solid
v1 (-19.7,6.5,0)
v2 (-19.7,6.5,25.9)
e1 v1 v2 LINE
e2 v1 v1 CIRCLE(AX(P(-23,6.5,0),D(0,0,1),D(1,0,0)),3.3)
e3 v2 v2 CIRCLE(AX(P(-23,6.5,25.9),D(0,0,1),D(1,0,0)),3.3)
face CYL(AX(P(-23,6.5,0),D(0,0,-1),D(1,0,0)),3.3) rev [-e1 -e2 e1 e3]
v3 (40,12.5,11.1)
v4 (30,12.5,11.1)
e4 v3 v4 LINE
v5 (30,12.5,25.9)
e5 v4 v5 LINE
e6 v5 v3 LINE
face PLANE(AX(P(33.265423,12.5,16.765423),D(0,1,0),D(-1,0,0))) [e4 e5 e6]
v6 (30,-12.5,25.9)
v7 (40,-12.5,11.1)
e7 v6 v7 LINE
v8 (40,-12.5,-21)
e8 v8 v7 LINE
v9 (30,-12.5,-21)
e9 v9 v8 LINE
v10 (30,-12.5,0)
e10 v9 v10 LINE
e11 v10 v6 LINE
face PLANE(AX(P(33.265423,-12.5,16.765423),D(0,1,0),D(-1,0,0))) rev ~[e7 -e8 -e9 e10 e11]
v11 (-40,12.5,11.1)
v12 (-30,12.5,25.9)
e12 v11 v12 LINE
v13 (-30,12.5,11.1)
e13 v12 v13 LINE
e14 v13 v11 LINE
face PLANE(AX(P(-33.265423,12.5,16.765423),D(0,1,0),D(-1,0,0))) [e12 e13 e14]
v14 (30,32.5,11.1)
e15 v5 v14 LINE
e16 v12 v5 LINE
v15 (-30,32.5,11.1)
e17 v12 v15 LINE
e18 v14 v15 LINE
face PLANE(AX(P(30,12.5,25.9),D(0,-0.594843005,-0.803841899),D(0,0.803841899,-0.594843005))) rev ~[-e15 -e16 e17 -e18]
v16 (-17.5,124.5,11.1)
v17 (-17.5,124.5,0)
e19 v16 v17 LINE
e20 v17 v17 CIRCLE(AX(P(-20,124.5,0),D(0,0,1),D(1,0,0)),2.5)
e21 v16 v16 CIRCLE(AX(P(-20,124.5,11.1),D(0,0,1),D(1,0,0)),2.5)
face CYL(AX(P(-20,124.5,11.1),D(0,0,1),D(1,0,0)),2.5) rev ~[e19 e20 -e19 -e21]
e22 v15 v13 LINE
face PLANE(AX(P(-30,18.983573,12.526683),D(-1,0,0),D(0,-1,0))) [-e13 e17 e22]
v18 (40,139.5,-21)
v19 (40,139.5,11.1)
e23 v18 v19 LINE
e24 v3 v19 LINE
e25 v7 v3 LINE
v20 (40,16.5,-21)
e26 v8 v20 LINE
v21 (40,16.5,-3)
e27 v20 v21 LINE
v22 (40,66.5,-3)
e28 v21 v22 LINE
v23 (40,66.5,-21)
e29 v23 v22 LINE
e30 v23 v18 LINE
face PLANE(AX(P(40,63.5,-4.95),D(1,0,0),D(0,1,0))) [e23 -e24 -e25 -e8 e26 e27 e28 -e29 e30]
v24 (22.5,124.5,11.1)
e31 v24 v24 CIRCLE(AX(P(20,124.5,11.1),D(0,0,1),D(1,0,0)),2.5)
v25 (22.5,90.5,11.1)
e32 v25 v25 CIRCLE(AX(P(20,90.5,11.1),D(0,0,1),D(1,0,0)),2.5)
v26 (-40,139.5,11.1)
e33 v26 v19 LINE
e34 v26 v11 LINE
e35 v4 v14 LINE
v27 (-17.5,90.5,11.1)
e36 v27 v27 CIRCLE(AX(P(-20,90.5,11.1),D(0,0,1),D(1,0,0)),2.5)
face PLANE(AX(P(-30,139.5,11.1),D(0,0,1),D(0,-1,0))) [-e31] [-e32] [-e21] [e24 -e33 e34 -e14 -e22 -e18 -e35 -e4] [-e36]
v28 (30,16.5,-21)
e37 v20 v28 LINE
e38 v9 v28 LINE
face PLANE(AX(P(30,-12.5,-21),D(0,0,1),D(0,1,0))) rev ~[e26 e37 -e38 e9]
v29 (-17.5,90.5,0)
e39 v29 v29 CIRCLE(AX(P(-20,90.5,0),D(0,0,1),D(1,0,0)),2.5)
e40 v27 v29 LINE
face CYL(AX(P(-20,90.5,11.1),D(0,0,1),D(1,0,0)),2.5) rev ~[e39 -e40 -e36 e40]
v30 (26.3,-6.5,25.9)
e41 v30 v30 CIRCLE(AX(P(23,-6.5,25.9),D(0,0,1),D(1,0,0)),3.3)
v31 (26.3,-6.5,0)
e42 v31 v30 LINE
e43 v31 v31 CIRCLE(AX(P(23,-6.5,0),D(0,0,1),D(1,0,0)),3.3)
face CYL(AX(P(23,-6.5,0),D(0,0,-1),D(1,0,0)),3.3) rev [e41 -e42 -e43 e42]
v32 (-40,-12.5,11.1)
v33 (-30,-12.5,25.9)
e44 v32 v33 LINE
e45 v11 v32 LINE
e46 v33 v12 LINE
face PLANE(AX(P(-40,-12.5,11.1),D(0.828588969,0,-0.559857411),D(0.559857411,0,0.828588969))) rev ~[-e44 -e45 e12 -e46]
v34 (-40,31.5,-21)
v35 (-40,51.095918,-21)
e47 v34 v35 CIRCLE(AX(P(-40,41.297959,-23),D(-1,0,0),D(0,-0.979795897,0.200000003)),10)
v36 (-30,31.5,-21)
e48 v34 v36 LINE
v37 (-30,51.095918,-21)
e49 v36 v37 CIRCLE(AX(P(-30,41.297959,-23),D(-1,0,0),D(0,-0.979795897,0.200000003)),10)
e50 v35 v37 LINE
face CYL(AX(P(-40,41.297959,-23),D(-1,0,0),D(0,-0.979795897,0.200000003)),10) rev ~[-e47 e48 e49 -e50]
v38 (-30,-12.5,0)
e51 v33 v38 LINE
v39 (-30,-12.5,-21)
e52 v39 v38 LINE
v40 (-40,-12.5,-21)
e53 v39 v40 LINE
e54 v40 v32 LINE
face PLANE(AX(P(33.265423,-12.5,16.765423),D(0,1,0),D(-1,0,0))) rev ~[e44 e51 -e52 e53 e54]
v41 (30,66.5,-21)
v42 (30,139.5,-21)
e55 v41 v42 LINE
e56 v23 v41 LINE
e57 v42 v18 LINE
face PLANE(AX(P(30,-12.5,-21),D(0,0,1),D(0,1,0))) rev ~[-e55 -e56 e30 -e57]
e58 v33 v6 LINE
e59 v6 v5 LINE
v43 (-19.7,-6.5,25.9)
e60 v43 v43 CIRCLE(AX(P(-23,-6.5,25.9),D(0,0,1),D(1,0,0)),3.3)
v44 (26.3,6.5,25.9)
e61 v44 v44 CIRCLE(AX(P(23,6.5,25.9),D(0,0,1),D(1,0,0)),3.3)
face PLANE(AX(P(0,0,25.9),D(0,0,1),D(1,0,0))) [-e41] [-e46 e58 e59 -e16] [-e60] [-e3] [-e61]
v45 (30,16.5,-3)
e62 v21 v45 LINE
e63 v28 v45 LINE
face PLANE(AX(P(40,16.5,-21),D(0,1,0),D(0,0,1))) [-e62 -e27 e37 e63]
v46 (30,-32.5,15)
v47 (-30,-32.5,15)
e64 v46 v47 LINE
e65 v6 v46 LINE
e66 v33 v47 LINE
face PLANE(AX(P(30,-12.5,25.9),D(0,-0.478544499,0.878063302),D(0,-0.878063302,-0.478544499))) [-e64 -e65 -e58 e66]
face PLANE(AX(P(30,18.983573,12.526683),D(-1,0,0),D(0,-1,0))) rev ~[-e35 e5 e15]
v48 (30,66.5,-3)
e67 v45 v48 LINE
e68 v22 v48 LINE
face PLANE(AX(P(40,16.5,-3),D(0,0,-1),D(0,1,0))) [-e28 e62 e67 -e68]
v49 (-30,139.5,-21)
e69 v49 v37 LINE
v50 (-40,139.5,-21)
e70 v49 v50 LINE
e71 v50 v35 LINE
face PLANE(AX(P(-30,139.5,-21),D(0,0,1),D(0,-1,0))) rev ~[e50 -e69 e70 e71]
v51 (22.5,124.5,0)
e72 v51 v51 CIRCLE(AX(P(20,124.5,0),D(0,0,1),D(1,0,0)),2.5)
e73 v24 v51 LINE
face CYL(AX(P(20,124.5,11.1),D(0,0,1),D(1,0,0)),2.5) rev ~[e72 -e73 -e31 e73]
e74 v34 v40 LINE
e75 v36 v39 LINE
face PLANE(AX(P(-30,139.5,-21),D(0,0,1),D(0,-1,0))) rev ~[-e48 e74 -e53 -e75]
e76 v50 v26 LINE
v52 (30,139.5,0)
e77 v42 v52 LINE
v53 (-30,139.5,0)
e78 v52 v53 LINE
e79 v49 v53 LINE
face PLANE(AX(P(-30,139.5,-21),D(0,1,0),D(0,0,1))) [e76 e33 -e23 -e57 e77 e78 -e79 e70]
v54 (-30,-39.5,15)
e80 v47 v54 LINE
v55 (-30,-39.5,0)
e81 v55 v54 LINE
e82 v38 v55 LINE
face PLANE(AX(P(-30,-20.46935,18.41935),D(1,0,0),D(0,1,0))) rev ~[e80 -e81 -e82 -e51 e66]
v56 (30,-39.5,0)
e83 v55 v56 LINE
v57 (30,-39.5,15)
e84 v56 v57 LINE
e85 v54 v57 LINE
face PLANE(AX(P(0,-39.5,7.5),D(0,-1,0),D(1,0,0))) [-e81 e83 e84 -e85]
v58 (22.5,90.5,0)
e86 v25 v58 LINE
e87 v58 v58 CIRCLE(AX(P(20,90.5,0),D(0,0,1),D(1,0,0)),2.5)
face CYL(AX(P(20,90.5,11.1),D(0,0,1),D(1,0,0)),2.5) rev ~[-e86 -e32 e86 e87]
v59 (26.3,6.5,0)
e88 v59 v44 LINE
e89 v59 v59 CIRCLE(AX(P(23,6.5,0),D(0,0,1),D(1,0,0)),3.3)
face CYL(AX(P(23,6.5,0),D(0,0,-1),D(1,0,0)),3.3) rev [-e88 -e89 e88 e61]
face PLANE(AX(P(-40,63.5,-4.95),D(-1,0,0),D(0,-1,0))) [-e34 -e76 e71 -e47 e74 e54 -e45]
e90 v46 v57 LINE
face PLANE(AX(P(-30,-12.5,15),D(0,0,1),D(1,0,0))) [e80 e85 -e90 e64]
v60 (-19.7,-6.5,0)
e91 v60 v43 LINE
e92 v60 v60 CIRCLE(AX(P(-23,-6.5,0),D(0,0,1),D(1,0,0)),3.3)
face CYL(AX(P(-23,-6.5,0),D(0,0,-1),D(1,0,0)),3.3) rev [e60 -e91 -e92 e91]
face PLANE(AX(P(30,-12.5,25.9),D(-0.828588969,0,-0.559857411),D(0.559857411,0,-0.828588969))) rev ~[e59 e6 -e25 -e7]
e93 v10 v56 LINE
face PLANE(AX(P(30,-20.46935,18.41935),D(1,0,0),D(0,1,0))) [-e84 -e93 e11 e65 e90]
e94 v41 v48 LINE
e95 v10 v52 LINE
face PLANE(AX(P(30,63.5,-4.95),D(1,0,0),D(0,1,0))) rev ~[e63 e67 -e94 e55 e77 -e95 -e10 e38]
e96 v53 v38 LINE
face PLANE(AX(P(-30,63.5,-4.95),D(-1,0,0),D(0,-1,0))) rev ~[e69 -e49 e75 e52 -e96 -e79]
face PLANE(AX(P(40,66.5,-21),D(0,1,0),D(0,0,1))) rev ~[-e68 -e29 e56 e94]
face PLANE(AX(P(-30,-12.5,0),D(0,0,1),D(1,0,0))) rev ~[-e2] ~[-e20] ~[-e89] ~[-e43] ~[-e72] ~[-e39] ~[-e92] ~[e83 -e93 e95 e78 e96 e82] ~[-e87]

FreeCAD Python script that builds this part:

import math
import FreeCAD as App
import Part
import Sketcher
from FreeCAD import Vector
Q = App.Units.Quantity

doc = App.newDocument("Part")
body = doc.addObject("PartDesign::Body", "Body")

# Sketch on XY plane
sketch1 = body.newObject("Sketcher::SketchObject", "Sketch")
sketch1.AttachmentSupport = (doc.getObject("XY_Plane"), [""])
sketch1.MapMode = "FlatFace"
sketch1.addGeometry([
    Part.LineSegment(Vector(-30, 12.5, 0), Vector(-30, -12.5, 0)),  # 0
    Part.LineSegment(Vector(-30, -12.5, 0), Vector(30, -12.5, 0)),  # 1
    Part.LineSegment(Vector(30, -12.5, 0), Vector(30, 12.5, 0)),  # 2
    Part.LineSegment(Vector(30, 12.5, 0), Vector(-30, 12.5, 0)),  # 3
    Part.Circle(Vector(-23, -6.5, 0), Vector(0, 0, 1), 3.3),  # 4
    Part.Circle(Vector(23, -6.5, 0), Vector(0, 0, 1), 3.3),  # 5
    Part.Circle(Vector(-23, 6.5, 0), Vector(0, 0, 1), 3.3),  # 6
    Part.Circle(Vector(23, 6.5, 0), Vector(0, 0, 1), 3.3),  # 7
], False)
sketch1.addConstraint([
    Sketcher.Constraint("Coincident", 0, 2, 1, 1),
    Sketcher.Constraint("Coincident", 1, 2, 2, 1),
    Sketcher.Constraint("Coincident", 2, 2, 3, 1),
    Sketcher.Constraint("Coincident", 3, 2, 0, 1),
    Sketcher.Constraint("Vertical", 0),
    Sketcher.Constraint("Horizontal", 1),
    Sketcher.Constraint("Vertical", 2),
    Sketcher.Constraint("Horizontal", 3),
    Sketcher.Constraint("Equal", 4, 5),
    Sketcher.Constraint("Equal", 5, 6),
    Sketcher.Constraint("Equal", 6, 7),
    Sketcher.Constraint("Symmetric", 5, 3, 6, 3, -1, 1),
    Sketcher.Constraint("Symmetric", 4, 3, 7, 3, -1, 1),
    Sketcher.Constraint("Symmetric", 0, 2, 2, 2, -1, 1),
    Sketcher.Constraint("Symmetric", 4, 3, 5, 3, -2),
    Sketcher.Constraint("Diameter", 4, Q("6.6 mm")),
    Sketcher.Constraint("DistanceX", 1, 1, 1, 2, Q("60 mm")),
    Sketcher.Constraint("DistanceY", 0, 2, 0, 1, Q("25 mm")),
    Sketcher.Constraint("DistanceX", 4, 3, -1, 1, Q("23 mm")),
    Sketcher.Constraint("DistanceY", 4, 3, 6, 3, Q("13 mm")),
])
pad1 = body.newObject("PartDesign::Pad", "Pad")
pad1.Profile = sketch1
pad1.Length = 25.9

# Sketch on XZ plane
sketch2 = body.newObject("Sketcher::SketchObject", "Sketch001")
sketch2.AttachmentSupport = (doc.getObject("XZ_Plane"), [""])
sketch2.MapMode = "FlatFace"
sketch2.AttachmentOffset = App.Placement(Vector(0, 0, -12.5), App.Rotation())
sketch2.addGeometry([
    Part.LineSegment(Vector(30, 11, 0), Vector(30, 0, 0)),
    Part.LineSegment(Vector(30, 0, 0), Vector(-30, 0, 0)),
    Part.LineSegment(Vector(-30, 0, 0), Vector(-30, 11, 0)),
    Part.LineSegment(Vector(-30, 11, 0), Vector(30, 11, 0)),
], False)
sketch2.addConstraint([
    Sketcher.Constraint("Coincident", 0, 2, 1, 1),
    Sketcher.Constraint("Coincident", 1, 2, 2, 1),
    Sketcher.Constraint("Coincident", 2, 2, 3, 1),
    Sketcher.Constraint("Coincident", 3, 2, 0, 1),
    Sketcher.Constraint("Vertical", 0),
    Sketcher.Constraint("Horizontal", 1),
    Sketcher.Constraint("Vertical", 2),
    Sketcher.Constraint("Horizontal", 3),
    Sketcher.Constraint("Symmetric", 0, 2, 1, 2, -1, 1),
    Sketcher.Constraint("DistanceX", 1, 2, 1, 1, Q("60 mm")),
    Sketcher.Constraint("DistanceY", 0, 2, 0, 1, Q("11.1 mm")),
])
pad2 = body.newObject("PartDesign::Pad", "Pad001")
pad2.Profile = sketch2
pad2.Length = 127
pad2.Reversed = True

# Sketch on XY plane
sketch3 = body.newObject("Sketcher::SketchObject", "Sketch002")
sketch3.AttachmentSupport = (doc.getObject("XY_Plane"), [""])
sketch3.MapMode = "FlatFace"
sketch3.AttachmentOffset = App.Placement(Vector(0, 0, 11.1), App.Rotation())
sketch3.addGeometry([
    Part.Circle(Vector(-20, 124.5, 0), Vector(0, 0, 1), 2.5),
    Part.Circle(Vector(20, 124.5, 0), Vector(0, 0, 1), 2.5),
    Part.Circle(Vector(-20, 90.5, 0), Vector(0, 0, 1), 2.5),
    Part.Circle(Vector(20, 90.5, 0), Vector(0, 0, 1), 2.5),
], False)
sketch3.addConstraint([
    Sketcher.Constraint("Equal", 0, 1),
    Sketcher.Constraint("Equal", 1, 2),
    Sketcher.Constraint("Equal", 2, 3),
    Sketcher.Constraint("Symmetric", 0, 3, 1, 3, -2),
    Sketcher.Constraint("Symmetric", 2, 3, 3, 3, -2),
    Sketcher.Constraint("Vertical", 0, 3, 2, 3),
    Sketcher.Constraint("Diameter", 0, Q("5 mm")),
    Sketcher.Constraint("DistanceX", 0, 3, -1, 1, Q("20 mm")),
    Sketcher.Constraint("DistanceY", 2, 3, 0, 3, Q("34 mm")),
    Sketcher.Constraint("DistanceY", -1, 1, 0, 3, Q("124.5 mm")),
])
pocket1 = body.newObject("PartDesign::Pocket", "Pocket")
pocket1.Profile = sketch3
pocket1.Type = "ThroughAll"

# Sketch on YZ plane
sketch4 = body.newObject("Sketcher::SketchObject", "Sketch003")
sketch4.AttachmentSupport = (doc.getObject("YZ_Plane"), [""])
sketch4.MapMode = "FlatFace"
sketch4.AttachmentOffset = App.Placement(Vector(0, 0, 30), App.Rotation())
sketch4.addGeometry([
    Part.LineSegment(Vector(32, 11, 0), Vector(12, 26, 0)),
    Part.LineSegment(Vector(12, 26, 0), Vector(12, 0, 0)),
    Part.LineSegment(Vector(12, 0, 0), Vector(32, 11, 0)),
], False)
sketch4.addConstraint([
    Sketcher.Constraint("Coincident", 0, 2, 1, 1),
    Sketcher.Constraint("Coincident", 1, 2, 2, 1),
    Sketcher.Constraint("Coincident", 2, 2, 0, 1),
    Sketcher.Constraint("Vertical", 1),
    Sketcher.Constraint("PointOnObject", 1, 2, -1),
    Sketcher.Constraint("DistanceY", 1, 2, 1, 1, Q("25.9 mm")),
    Sketcher.Constraint("DistanceX", 1, 2, 2, 2, Q("20 mm")),
    Sketcher.Constraint("DistanceX", -1, 1, 0, 2, Q("12.5 mm")),
    Sketcher.Constraint("DistanceY", -1, 1, 2, 2, Q("11.1 mm")),
])
pad3 = body.newObject("PartDesign::Pad", "Pad002")
pad3.Profile = sketch4
pad3.Length = 60
pad3.Reversed = True

# Sketch on YZ plane
sketch5 = body.newObject("Sketcher::SketchObject", "Sketch004")
sketch5.AttachmentSupport = (doc.getObject("YZ_Plane"), [""])
sketch5.MapMode = "FlatFace"
sketch5.AttachmentOffset = App.Placement(Vector(0, 0, 30), App.Rotation())
sketch5.addGeometry([
    Part.LineSegment(Vector(-12, 11, 0), Vector(-12, -21, 0)),
    Part.LineSegment(Vector(-12, -21, 0), Vector(140, -21, 0)),
    Part.LineSegment(Vector(140, -21, 0), Vector(140, 11, 0)),
    Part.LineSegment(Vector(140, 11, 0), Vector(-12, 11, 0)),
], False)
sketch5.addConstraint([
    Sketcher.Constraint("Coincident", 0, 2, 1, 1),
    Sketcher.Constraint("Coincident", 1, 2, 2, 1),
    Sketcher.Constraint("Coincident", 2, 2, 3, 1),
    Sketcher.Constraint("Coincident", 3, 2, 0, 1),
    Sketcher.Constraint("Vertical", 0),
    Sketcher.Constraint("Horizontal", 1),
    Sketcher.Constraint("Vertical", 2),
    Sketcher.Constraint("Horizontal", 3),
    Sketcher.Constraint("DistanceX", 1, 1, 1, 2, Q("152 mm")),
    Sketcher.Constraint("DistanceY", 0, 2, 0, 1, Q("32.1 mm")),
    Sketcher.Constraint("DistanceY", 0, 2, -1, 1, Q("21 mm")),
    Sketcher.Constraint("DistanceX", 0, 2, -1, 1, Q("12.5 mm")),
])
pad4 = body.newObject("PartDesign::Pad", "Pad003")
pad4.Profile = sketch5
pad4.Length = 10

# Sketch on YZ plane
sketch6 = body.newObject("Sketcher::SketchObject", "Sketch005")
sketch6.AttachmentSupport = (doc.getObject("YZ_Plane"), [""])
sketch6.MapMode = "FlatFace"
sketch6.AttachmentOffset = App.Placement(Vector(0, 0, -30), App.Rotation())
sketch6.addGeometry([
    Part.LineSegment(Vector(140, 11, 0), Vector(140, -21, 0)),
    Part.LineSegment(Vector(140, -21, 0), Vector(-12, -21, 0)),
    Part.LineSegment(Vector(-12, -21, 0), Vector(-12, 11, 0)),
    Part.LineSegment(Vector(-12, 11, 0), Vector(140, 11, 0)),
], False)
sketch6.addConstraint([
    Sketcher.Constraint("Coincident", 0, 2, 1, 1),
    Sketcher.Constraint("Coincident", 1, 2, 2, 1),
    Sketcher.Constraint("Coincident", 2, 2, 3, 1),
    Sketcher.Constraint("Coincident", 3, 2, 0, 1),
    Sketcher.Constraint("Vertical", 0),
    Sketcher.Constraint("Horizontal", 1),
    Sketcher.Constraint("Vertical", 2),
    Sketcher.Constraint("Horizontal", 3),
    Sketcher.Constraint("DistanceX", 1, 2, 1, 1, Q("152 mm")),
    Sketcher.Constraint("DistanceY", 0, 2, 0, 1, Q("32.1 mm")),
    Sketcher.Constraint("DistanceY", 0, 2, -1, 1, Q("21 mm")),
    Sketcher.Constraint("DistanceX", -1, 1, 0, 2, Q("139.5 mm")),
])
pad5 = body.newObject("PartDesign::Pad", "Pad004")
pad5.Profile = sketch6
pad5.Length = 10
pad5.Reversed = True

# Sketch on XZ plane
sketch7 = body.newObject("Sketcher::SketchObject", "Sketch006")
sketch7.AttachmentSupport = (doc.getObject("XZ_Plane"), [""])
sketch7.MapMode = "FlatFace"
sketch7.AttachmentOffset = App.Placement(Vector(0, 0, 12.5), App.Rotation())
sketch7.addGeometry([
    Part.LineSegment(Vector(30, 11, 0), Vector(40, 11, 0)),  # 0
    Part.LineSegment(Vector(40, 11, 0), Vector(30, 26, 0)),  # 1
    Part.LineSegment(Vector(30, 26, 0), Vector(30, 11, 0)),  # 2
    Part.LineSegment(Vector(-30, 11, 0), Vector(-30, 26, 0)),  # 3
    Part.LineSegment(Vector(-30, 26, 0), Vector(-40, 11, 0)),  # 4
    Part.LineSegment(Vector(-40, 11, 0), Vector(-30, 11, 0)),  # 5
], False)
sketch7.addConstraint([
    Sketcher.Constraint("Coincident", 0, 2, 1, 1),
    Sketcher.Constraint("Coincident", 1, 2, 2, 1),
    Sketcher.Constraint("Coincident", 2, 2, 0, 1),
    Sketcher.Constraint("Coincident", 3, 2, 4, 1),
    Sketcher.Constraint("Coincident", 4, 2, 5, 1),
    Sketcher.Constraint("Coincident", 5, 2, 3, 1),
    Sketcher.Constraint("Horizontal", 0),
    Sketcher.Constraint("Vertical", 2),
    Sketcher.Constraint("Vertical", 3),
    Sketcher.Constraint("Horizontal", 5),
    Sketcher.Constraint("Symmetric", 1, 2, 3, 2, -2),
    Sketcher.Constraint("Symmetric", 0, 2, 4, 2, -2),
    Sketcher.Constraint("DistanceX", 0, 1, 0, 2, Q("10 mm")),
    Sketcher.Constraint("DistanceY", 2, 2, 2, 1, Q("14.8 mm")),
    Sketcher.Constraint("DistanceX", -1, 1, 0, 2, Q("40 mm")),
    Sketcher.Constraint("DistanceY", -1, 1, 0, 2, Q("11.1 mm")),
])
pad6 = body.newObject("PartDesign::Pad", "Pad005")
pad6.Profile = sketch7
pad6.Length = 25
pad6.Reversed = True

# Sketch on YZ plane
sketch8 = body.newObject("Sketcher::SketchObject", "Sketch007")
sketch8.AttachmentSupport = (doc.getObject("YZ_Plane"), [""])
sketch8.MapMode = "FlatFace"
sketch8.AttachmentOffset = App.Placement(Vector(0, 0, 40), App.Rotation())
sketch8.addGeometry([
    Part.LineSegment(Vector(16, -3, 0), Vector(16, -21, 0)),
    Part.LineSegment(Vector(16, -21, 0), Vector(66, -21, 0)),
    Part.LineSegment(Vector(66, -21, 0), Vector(66, -3, 0)),
    Part.LineSegment(Vector(66, -3, 0), Vector(16, -3, 0)),
], False)
sketch8.addConstraint([
    Sketcher.Constraint("Coincident", 0, 2, 1, 1),
    Sketcher.Constraint("Coincident", 1, 2, 2, 1),
    Sketcher.Constraint("Coincident", 2, 2, 3, 1),
    Sketcher.Constraint("Coincident", 3, 2, 0, 1),
    Sketcher.Constraint("Vertical", 0),
    Sketcher.Constraint("Horizontal", 1),
    Sketcher.Constraint("Vertical", 2),
    Sketcher.Constraint("Horizontal", 3),
    Sketcher.Constraint("DistanceX", 1, 1, 1, 2, Q("50 mm")),
    Sketcher.Constraint("DistanceY", 0, 2, 0, 1, Q("18 mm")),
    Sketcher.Constraint("DistanceY", 0, 2, -1, 1, Q("21 mm")),
    Sketcher.Constraint("DistanceX", -1, 1, 0, 2, Q("16.5 mm")),
])
pocket2 = body.newObject("PartDesign::Pocket", "Pocket001")
pocket2.Profile = sketch8
pocket2.Length = 10

# Sketch on YZ plane
sketch9 = body.newObject("Sketcher::SketchObject", "Sketch008")
sketch9.AttachmentSupport = (doc.getObject("YZ_Plane"), [""])
sketch9.MapMode = "FlatFace"
sketch9.AttachmentOffset = App.Placement(Vector(0, 0, -40), App.Rotation())
sketch9.addGeometry([
    Part.ArcOfCircle(Part.Circle(Vector(41, -23, 0), Vector(0, 0, 1), 10), math.radians(12), math.radians(168)),
    Part.LineSegment(Vector(51, -21, 0), Vector(32, -21, 0)),
], False)
sketch9.addConstraint([
    Sketcher.Constraint("Coincident", 0, 1, 1, 1),
    Sketcher.Constraint("Coincident", 1, 2, 0, 2),
    Sketcher.Constraint("Horizontal", 1),
    Sketcher.Constraint("Radius", 0, Q("10 mm")),
    Sketcher.Constraint("DistanceY", 0, 3, -1, 1, Q("23 mm")),
    Sketcher.Constraint("DistanceY", 0, 1, -1, 1, Q("21 mm")),
    Sketcher.Constraint("DistanceX", -1, 1, 1, 2, Q("31.5 mm")),
])
pocket3 = body.newObject("PartDesign::Pocket", "Pocket002")
pocket3.Profile = sketch9
pocket3.Length = 10
pocket3.Reversed = True

# Sketch on XZ plane
sketch10 = body.newObject("Sketcher::SketchObject", "Sketch009")
sketch10.AttachmentSupport = (doc.getObject("XZ_Plane"), [""])
sketch10.MapMode = "FlatFace"
sketch10.AttachmentOffset = App.Placement(Vector(0, 0, 12.5), App.Rotation())
sketch10.addGeometry([
    Part.LineSegment(Vector(-30, 15, 0), Vector(-30, 0, 0)),
    Part.LineSegment(Vector(-30, 0, 0), Vector(30, 0, 0)),
    Part.LineSegment(Vector(30, 0, 0), Vector(30, 15, 0)),
    Part.LineSegment(Vector(30, 15, 0), Vector(-30, 15, 0)),
], False)
sketch10.addConstraint([
    Sketcher.Constraint("Coincident", 0, 2, 1, 1),
    Sketcher.Constraint("Coincident", 1, 2, 2, 1),
    Sketcher.Constraint("Coincident", 2, 2, 3, 1),
    Sketcher.Constraint("Coincident", 3, 2, 0, 1),
    Sketcher.Constraint("Vertical", 0),
    Sketcher.Constraint("Horizontal", 1),
    Sketcher.Constraint("Vertical", 2),
    Sketcher.Constraint("Horizontal", 3),
    Sketcher.Constraint("Symmetric", 0, 2, 1, 2, -1, 1),
    Sketcher.Constraint("DistanceX", 1, 1, 1, 2, Q("60 mm")),
    Sketcher.Constraint("DistanceY", 0, 2, 0, 1, Q("15 mm")),
])
pad7 = body.newObject("PartDesign::Pad", "Pad006")
pad7.Profile = sketch10
pad7.Length = 27

# Sketch on YZ plane
sketch11 = body.newObject("Sketcher::SketchObject", "Sketch010")
sketch11.AttachmentSupport = (doc.getObject("YZ_Plane"), [""])
sketch11.MapMode = "FlatFace"
sketch11.AttachmentOffset = App.Placement(Vector(0, 0, 30), App.Rotation())
sketch11.addGeometry([
    Part.LineSegment(Vector(-32, 15, 0), Vector(-12, 15, 0)),
    Part.LineSegment(Vector(-12, 15, 0), Vector(-12, 26, 0)),
    Part.LineSegment(Vector(-12, 26, 0), Vector(-32, 15, 0)),
], False)
sketch11.addConstraint([
    Sketcher.Constraint("Coincident", 0, 2, 1, 1),
    Sketcher.Constraint("Coincident", 1, 2, 2, 1),
    Sketcher.Constraint("Coincident", 2, 2, 0, 1),
    Sketcher.Constraint("Horizontal", 0),
    Sketcher.Constraint("Vertical", 1),
    Sketcher.Constraint("DistanceX", 0, 1, 0, 2, Q("20 mm")),
    Sketcher.Constraint("DistanceY", 1, 1, 1, 2, Q("10.9 mm")),
    Sketcher.Constraint("DistanceY", -1, 1, 0, 2, Q("15 mm")),
    Sketcher.Constraint("DistanceX", 0, 2, -1, 1, Q("12.5 mm")),
])
pad8 = body.newObject("PartDesign::Pad", "Pad007")
pad8.Profile = sketch11
pad8.Length = 60
pad8.Reversed = True

doc.recompute()
